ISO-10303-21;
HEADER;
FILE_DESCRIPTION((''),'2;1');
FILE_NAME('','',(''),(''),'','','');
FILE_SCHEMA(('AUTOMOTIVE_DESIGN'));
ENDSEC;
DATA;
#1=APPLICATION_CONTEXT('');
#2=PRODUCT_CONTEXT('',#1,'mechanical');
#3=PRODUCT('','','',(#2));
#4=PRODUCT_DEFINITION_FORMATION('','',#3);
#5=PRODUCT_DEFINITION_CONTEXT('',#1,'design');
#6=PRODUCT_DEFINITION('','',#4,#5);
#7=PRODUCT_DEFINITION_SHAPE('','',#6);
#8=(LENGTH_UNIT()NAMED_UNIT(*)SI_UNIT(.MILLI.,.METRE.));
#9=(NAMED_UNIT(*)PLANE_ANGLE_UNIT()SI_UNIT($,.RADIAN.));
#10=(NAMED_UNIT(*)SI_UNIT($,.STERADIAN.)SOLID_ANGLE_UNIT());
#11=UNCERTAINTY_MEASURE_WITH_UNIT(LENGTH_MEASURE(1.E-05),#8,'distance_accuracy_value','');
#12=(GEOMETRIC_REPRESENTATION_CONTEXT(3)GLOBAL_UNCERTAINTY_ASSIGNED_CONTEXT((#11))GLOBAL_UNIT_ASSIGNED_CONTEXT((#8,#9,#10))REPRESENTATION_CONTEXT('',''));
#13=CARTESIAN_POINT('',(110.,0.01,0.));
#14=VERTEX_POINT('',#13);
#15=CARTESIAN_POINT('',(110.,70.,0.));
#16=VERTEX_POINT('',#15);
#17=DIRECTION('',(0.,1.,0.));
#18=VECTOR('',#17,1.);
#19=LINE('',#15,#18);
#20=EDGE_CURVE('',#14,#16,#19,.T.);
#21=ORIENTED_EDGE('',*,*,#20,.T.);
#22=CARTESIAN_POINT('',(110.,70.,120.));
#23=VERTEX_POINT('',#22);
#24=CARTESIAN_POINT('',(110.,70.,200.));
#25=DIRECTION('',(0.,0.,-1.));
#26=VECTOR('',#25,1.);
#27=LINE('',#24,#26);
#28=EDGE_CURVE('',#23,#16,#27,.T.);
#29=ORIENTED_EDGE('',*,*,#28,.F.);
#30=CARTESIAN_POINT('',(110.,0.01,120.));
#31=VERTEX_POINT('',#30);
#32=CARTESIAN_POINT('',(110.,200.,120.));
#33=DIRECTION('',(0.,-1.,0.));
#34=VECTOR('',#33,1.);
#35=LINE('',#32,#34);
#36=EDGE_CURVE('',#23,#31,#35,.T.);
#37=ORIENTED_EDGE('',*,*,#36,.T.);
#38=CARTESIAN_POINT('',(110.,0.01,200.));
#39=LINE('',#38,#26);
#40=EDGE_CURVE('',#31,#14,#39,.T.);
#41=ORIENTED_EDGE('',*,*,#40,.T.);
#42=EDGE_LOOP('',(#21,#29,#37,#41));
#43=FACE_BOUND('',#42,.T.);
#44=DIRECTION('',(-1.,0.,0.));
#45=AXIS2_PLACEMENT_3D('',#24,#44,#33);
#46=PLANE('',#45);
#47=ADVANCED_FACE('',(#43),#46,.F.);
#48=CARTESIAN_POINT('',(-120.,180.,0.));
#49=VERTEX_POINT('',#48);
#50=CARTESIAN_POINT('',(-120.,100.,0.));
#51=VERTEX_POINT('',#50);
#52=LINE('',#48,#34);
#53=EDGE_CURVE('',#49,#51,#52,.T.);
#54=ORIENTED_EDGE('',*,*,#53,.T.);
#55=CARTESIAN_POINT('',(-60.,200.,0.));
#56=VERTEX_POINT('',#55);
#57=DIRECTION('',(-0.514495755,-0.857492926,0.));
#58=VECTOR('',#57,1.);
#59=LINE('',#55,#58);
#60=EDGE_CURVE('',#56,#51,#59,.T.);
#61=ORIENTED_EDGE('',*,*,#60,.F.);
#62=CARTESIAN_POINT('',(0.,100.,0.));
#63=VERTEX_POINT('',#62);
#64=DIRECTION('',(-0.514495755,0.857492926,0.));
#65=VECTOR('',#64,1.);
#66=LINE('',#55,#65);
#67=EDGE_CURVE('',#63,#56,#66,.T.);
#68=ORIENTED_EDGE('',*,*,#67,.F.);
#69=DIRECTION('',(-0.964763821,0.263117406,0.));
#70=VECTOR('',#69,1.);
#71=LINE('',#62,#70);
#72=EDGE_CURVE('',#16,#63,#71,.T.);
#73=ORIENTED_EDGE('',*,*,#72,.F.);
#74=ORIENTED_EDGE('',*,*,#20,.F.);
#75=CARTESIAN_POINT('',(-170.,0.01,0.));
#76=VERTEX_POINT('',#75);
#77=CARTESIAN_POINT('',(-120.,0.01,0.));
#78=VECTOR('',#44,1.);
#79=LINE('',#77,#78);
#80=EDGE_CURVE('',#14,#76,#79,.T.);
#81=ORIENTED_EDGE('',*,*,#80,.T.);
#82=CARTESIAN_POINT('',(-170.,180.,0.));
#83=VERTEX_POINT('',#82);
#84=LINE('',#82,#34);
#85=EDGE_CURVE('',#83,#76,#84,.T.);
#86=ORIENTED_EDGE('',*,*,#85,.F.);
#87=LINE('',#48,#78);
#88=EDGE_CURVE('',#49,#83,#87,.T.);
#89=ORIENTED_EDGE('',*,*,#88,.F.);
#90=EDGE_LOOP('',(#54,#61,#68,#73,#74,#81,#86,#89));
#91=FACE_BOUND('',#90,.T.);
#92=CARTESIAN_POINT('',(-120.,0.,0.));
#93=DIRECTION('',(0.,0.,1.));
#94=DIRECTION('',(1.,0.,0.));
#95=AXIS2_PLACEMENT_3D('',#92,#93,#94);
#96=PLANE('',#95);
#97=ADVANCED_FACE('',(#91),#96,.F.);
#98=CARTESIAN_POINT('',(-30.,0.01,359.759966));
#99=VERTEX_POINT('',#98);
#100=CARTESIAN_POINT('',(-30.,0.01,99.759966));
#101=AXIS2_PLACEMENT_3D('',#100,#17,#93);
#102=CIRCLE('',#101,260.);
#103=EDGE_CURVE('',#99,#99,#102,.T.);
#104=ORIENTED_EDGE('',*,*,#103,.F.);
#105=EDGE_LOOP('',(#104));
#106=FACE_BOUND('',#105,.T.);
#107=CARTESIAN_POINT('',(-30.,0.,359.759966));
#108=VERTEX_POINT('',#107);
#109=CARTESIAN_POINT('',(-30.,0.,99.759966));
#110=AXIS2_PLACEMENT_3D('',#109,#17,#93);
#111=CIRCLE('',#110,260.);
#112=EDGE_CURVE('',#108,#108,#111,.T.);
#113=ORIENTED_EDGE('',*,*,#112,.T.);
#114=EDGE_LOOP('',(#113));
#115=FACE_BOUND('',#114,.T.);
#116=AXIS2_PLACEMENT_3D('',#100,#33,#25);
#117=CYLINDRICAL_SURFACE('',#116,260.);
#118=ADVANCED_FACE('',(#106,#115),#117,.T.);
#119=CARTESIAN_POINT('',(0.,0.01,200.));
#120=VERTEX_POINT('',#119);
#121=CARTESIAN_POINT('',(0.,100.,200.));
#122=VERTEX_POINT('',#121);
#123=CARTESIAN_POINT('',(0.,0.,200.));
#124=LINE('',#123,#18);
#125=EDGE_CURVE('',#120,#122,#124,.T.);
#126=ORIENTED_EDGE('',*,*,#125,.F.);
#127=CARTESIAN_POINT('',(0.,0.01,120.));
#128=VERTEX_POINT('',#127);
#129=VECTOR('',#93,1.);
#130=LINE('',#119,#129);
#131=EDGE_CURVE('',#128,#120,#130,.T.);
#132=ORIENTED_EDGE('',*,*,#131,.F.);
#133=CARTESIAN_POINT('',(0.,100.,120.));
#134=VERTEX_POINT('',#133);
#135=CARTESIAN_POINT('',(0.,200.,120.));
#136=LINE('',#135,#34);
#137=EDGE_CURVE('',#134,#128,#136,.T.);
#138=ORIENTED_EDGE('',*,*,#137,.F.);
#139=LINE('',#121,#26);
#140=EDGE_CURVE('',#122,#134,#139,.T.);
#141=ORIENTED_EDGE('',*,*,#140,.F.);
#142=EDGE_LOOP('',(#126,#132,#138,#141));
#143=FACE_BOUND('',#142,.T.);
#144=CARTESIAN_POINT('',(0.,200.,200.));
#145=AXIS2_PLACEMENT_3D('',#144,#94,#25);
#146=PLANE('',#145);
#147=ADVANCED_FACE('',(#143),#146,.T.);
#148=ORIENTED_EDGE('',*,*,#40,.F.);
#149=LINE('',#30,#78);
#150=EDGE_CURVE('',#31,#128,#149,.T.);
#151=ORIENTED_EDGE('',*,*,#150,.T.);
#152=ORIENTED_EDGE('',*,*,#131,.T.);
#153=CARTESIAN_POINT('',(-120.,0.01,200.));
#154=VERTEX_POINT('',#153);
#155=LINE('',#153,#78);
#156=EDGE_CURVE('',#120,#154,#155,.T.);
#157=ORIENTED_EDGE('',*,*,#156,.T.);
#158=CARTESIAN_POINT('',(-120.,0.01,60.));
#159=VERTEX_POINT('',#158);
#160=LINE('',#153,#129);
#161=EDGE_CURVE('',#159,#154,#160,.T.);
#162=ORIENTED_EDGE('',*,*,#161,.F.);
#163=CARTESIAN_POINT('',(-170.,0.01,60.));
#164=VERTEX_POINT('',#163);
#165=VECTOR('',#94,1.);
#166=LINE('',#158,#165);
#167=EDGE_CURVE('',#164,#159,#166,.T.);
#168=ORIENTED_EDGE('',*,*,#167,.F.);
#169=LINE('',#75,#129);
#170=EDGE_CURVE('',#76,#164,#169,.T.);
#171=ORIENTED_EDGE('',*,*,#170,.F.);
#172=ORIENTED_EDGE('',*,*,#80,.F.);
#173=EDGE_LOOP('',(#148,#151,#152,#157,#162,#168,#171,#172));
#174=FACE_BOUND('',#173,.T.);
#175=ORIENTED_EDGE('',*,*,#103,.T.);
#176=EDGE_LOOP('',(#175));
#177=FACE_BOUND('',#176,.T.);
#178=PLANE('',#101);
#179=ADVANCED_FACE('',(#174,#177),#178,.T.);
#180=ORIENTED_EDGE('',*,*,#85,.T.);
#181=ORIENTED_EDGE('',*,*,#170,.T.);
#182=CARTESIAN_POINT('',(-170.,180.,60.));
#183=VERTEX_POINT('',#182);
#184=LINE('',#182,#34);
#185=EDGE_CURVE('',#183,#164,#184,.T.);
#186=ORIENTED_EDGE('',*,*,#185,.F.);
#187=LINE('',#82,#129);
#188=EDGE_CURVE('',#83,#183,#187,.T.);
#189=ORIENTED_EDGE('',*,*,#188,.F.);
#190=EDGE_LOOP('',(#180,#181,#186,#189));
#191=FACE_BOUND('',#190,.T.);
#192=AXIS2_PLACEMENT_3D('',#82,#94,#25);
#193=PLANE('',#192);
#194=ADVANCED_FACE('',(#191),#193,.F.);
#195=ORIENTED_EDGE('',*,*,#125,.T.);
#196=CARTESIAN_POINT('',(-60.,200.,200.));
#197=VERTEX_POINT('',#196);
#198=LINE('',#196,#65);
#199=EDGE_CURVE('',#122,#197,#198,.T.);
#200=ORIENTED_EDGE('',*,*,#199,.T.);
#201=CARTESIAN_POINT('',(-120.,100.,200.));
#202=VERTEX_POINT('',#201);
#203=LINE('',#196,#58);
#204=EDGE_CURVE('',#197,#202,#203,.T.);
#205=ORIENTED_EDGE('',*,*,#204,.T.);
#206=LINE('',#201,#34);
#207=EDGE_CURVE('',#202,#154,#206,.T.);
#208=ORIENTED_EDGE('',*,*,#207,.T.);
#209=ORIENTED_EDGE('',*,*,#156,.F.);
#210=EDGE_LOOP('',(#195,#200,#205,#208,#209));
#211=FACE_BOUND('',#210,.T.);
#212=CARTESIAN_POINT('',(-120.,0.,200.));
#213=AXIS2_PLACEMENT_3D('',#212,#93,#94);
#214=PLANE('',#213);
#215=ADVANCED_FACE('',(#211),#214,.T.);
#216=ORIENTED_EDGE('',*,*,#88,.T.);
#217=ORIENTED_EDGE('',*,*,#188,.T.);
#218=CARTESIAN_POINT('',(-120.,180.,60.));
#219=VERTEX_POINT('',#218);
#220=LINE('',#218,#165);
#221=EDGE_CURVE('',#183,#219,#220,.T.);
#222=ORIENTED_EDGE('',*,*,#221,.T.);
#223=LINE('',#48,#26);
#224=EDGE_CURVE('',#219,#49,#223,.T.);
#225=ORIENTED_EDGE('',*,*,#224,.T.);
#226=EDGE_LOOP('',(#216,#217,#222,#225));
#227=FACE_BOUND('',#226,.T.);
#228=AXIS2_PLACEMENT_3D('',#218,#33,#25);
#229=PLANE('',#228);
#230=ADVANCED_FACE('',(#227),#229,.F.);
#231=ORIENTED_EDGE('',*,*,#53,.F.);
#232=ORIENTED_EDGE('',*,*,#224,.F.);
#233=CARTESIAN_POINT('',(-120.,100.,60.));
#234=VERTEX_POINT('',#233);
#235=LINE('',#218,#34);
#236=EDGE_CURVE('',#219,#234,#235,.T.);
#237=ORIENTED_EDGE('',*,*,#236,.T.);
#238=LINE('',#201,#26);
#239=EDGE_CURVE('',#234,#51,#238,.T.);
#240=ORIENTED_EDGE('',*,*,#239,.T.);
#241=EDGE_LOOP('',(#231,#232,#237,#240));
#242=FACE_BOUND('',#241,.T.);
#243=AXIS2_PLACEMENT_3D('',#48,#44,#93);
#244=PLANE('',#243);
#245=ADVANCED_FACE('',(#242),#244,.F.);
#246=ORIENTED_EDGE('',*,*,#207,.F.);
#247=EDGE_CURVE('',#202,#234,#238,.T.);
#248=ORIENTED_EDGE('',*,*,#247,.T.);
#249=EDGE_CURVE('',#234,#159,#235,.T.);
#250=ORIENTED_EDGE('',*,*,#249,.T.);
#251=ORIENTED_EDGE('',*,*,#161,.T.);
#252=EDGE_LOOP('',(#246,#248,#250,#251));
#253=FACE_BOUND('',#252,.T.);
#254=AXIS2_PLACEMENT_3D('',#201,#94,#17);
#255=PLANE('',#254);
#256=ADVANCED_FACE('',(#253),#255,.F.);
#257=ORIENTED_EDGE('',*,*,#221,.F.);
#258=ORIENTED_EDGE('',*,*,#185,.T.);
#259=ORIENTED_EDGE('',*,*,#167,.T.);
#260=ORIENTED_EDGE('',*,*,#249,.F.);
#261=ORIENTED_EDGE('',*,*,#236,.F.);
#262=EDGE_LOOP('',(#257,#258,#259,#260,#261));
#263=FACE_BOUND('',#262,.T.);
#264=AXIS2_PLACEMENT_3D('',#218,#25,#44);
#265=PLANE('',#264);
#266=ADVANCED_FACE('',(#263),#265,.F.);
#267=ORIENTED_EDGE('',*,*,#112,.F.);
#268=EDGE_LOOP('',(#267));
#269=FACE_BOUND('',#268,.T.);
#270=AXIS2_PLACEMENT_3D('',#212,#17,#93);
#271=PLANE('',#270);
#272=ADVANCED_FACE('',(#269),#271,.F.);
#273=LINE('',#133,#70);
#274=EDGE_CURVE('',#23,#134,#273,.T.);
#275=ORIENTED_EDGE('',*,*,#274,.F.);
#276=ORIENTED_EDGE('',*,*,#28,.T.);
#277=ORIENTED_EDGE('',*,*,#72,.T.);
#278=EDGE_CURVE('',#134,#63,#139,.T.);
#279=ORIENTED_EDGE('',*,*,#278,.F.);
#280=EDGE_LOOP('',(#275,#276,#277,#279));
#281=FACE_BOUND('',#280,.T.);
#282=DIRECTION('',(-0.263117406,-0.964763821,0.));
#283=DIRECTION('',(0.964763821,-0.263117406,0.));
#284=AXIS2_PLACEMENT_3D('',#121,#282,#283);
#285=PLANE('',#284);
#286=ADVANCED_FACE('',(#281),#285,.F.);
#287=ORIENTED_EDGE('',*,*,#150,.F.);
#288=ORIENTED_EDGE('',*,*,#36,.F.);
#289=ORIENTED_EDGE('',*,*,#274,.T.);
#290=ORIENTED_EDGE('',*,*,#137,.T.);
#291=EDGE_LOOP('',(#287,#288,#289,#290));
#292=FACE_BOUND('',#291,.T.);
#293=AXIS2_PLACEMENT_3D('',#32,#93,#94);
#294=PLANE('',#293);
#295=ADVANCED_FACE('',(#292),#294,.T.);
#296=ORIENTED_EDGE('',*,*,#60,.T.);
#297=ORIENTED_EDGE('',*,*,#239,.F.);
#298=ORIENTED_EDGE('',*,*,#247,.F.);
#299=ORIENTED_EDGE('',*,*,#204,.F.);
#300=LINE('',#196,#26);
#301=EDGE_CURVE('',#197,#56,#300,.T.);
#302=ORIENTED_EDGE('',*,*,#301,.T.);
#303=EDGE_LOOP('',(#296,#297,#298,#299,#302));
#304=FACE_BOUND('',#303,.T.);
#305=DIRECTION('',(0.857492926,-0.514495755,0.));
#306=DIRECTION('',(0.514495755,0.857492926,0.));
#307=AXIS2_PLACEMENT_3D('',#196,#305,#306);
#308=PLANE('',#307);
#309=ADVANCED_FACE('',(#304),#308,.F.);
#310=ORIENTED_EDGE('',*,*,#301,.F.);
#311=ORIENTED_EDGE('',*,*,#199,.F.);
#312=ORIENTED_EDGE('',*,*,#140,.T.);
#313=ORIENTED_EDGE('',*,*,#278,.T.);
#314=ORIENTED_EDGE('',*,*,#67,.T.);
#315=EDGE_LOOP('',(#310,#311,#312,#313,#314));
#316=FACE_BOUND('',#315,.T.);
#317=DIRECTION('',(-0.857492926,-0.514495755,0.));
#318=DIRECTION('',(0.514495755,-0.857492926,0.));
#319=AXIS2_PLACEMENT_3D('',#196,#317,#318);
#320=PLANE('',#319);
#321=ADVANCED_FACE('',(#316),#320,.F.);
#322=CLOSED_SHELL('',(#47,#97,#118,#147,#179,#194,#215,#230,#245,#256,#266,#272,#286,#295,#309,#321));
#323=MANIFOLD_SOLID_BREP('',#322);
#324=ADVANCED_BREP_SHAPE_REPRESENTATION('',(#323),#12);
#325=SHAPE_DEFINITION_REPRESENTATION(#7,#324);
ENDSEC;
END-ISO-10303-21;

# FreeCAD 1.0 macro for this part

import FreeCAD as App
import Part
import Sketcher
from FreeCAD import Vector
Q = App.Units.Quantity


def add_polygon(sketch, points):
    """Adds a closed chain of lines whose ends are joined by coincident constraints."""
    first, n = sketch.GeometryCount, len(points)
    for a, b in zip(points, points[1:] + points[:1]):
        sketch.addGeometry(Part.LineSegment(App.Vector(*a, 0), App.Vector(*b, 0)), False)
    for i in range(n):
        sketch.addConstraint(Sketcher.Constraint("Coincident", first + i, 2, first + (i + 1) % n, 1))

doc = App.newDocument("Part")
body = doc.addObject("PartDesign::Body", "Body")

sketch1 = body.newObject("Sketcher::SketchObject", "Sketch")
sketch1.AttachmentSupport = (doc.getObject("XY_Plane"), [""])
sketch1.MapMode = "FlatFace"
add_polygon(sketch1, [(0, 100), (-60, 200), (-120, 100), (-120, 0), (110, 0), (110, 70)])
sketch1.addConstraint([
    Sketcher.Constraint("Vertical", 2),
    Sketcher.Constraint("Horizontal", 3),
    Sketcher.Constraint("Vertical", 4),
    Sketcher.Constraint("PointOnObject", 2, 2, -1),
    Sketcher.Constraint("PointOnObject", 5, 2, -2),
    Sketcher.Constraint("Horizontal", 1, 2, 5, 2),
    Sketcher.Constraint("Equal", 0, 1),
    Sketcher.Constraint("DistanceX", 3, 1, 3, 2, Q("230 mm")),
    Sketcher.Constraint("DistanceY", 2, 2, 2, 1, Q("100 mm")),
    Sketcher.Constraint("DistanceY", 4, 1, 4, 2, Q("70 mm")),
    Sketcher.Constraint("DistanceX", 0, 2, -1, 1, Q("60 mm")),
    Sketcher.Constraint("DistanceY", -1, 1, 0, 2, Q("200 mm")),
])
pad1 = body.newObject("PartDesign::Pad", "Pad")
pad1.Profile = sketch1
pad1.Length = 200

sketch2 = body.newObject("Sketcher::SketchObject", "Sketch001")
sketch2.AttachmentSupport = (doc.getObject("XZ_Plane"), [""])
sketch2.MapMode = "FlatFace"
add_polygon(sketch2, [(0, 120), (0, 200), (110, 200), (110, 120)])
sketch2.addConstraint([
    Sketcher.Constraint("Vertical", 0),
    Sketcher.Constraint("Horizontal", 1),
    Sketcher.Constraint("Vertical", 2),
    Sketcher.Constraint("Horizontal", 3),
    Sketcher.Constraint("PointOnObject", 0, 2, -2),
    Sketcher.Constraint("DistanceX", 1, 1, 1, 2, Q("110 mm")),
    Sketcher.Constraint("DistanceY", 0, 1, 0, 2, Q("80 mm")),
    Sketcher.Constraint("DistanceY", -1, 1, 0, 2, Q("200 mm")),
])
pocket1 = body.newObject("PartDesign::Pocket", "Pocket")
pocket1.Profile = sketch2
pocket1.Length = 200

sketch3 = body.newObject("Sketcher::SketchObject", "Sketch002")
sketch3.AttachmentSupport = (doc.getObject("XZ_Plane"), [""])
sketch3.MapMode = "FlatFace"
add_polygon(sketch3, [(-170, 0), (-170, 60), (-120, 60), (-120, 0)])
sketch3.addConstraint([
    Sketcher.Constraint("Vertical", 0),
    Sketcher.Constraint("Horizontal", 1),
    Sketcher.Constraint("Vertical", 2),
    Sketcher.Constraint("Horizontal", 3),
    Sketcher.Constraint("PointOnObject", 2, 2, -1),
    Sketcher.Constraint("DistanceX", 1, 1, 1, 2, Q("50 mm")),
    Sketcher.Constraint("DistanceY", 0, 1, 0, 2, Q("60 mm")),
    Sketcher.Constraint("DistanceX", 0, 2, -1, 1, Q("170 mm")),
])
pad2 = body.newObject("PartDesign::Pad", "Pad001")
pad2.Profile = sketch3
pad2.Length = 180
pad2.Reversed = True

sketch4 = body.newObject("Sketcher::SketchObject", "Sketch003")
sketch4.AttachmentSupport = (doc.getObject("XZ_Plane"), [""])
sketch4.MapMode = "FlatFace"
sketch4.addGeometry(Part.Circle(Vector(-30, 99.759966, 0), Vector(0, 0, 1), 260), False)
sketch4.addConstraint([
    Sketcher.Constraint("Diameter", 0, Q("520 mm")),
    Sketcher.Constraint("DistanceX", 0, 3, -1, 1, Q("30 mm")),
    Sketcher.Constraint("DistanceY", -1, 1, 0, 3, Q("99.759966 mm")),
])
pad3 = body.newObject("PartDesign::Pad", "Pad002")
pad3.Profile = sketch4
pad3.Length = 0.01
pad3.Reversed = True

doc.recompute()
